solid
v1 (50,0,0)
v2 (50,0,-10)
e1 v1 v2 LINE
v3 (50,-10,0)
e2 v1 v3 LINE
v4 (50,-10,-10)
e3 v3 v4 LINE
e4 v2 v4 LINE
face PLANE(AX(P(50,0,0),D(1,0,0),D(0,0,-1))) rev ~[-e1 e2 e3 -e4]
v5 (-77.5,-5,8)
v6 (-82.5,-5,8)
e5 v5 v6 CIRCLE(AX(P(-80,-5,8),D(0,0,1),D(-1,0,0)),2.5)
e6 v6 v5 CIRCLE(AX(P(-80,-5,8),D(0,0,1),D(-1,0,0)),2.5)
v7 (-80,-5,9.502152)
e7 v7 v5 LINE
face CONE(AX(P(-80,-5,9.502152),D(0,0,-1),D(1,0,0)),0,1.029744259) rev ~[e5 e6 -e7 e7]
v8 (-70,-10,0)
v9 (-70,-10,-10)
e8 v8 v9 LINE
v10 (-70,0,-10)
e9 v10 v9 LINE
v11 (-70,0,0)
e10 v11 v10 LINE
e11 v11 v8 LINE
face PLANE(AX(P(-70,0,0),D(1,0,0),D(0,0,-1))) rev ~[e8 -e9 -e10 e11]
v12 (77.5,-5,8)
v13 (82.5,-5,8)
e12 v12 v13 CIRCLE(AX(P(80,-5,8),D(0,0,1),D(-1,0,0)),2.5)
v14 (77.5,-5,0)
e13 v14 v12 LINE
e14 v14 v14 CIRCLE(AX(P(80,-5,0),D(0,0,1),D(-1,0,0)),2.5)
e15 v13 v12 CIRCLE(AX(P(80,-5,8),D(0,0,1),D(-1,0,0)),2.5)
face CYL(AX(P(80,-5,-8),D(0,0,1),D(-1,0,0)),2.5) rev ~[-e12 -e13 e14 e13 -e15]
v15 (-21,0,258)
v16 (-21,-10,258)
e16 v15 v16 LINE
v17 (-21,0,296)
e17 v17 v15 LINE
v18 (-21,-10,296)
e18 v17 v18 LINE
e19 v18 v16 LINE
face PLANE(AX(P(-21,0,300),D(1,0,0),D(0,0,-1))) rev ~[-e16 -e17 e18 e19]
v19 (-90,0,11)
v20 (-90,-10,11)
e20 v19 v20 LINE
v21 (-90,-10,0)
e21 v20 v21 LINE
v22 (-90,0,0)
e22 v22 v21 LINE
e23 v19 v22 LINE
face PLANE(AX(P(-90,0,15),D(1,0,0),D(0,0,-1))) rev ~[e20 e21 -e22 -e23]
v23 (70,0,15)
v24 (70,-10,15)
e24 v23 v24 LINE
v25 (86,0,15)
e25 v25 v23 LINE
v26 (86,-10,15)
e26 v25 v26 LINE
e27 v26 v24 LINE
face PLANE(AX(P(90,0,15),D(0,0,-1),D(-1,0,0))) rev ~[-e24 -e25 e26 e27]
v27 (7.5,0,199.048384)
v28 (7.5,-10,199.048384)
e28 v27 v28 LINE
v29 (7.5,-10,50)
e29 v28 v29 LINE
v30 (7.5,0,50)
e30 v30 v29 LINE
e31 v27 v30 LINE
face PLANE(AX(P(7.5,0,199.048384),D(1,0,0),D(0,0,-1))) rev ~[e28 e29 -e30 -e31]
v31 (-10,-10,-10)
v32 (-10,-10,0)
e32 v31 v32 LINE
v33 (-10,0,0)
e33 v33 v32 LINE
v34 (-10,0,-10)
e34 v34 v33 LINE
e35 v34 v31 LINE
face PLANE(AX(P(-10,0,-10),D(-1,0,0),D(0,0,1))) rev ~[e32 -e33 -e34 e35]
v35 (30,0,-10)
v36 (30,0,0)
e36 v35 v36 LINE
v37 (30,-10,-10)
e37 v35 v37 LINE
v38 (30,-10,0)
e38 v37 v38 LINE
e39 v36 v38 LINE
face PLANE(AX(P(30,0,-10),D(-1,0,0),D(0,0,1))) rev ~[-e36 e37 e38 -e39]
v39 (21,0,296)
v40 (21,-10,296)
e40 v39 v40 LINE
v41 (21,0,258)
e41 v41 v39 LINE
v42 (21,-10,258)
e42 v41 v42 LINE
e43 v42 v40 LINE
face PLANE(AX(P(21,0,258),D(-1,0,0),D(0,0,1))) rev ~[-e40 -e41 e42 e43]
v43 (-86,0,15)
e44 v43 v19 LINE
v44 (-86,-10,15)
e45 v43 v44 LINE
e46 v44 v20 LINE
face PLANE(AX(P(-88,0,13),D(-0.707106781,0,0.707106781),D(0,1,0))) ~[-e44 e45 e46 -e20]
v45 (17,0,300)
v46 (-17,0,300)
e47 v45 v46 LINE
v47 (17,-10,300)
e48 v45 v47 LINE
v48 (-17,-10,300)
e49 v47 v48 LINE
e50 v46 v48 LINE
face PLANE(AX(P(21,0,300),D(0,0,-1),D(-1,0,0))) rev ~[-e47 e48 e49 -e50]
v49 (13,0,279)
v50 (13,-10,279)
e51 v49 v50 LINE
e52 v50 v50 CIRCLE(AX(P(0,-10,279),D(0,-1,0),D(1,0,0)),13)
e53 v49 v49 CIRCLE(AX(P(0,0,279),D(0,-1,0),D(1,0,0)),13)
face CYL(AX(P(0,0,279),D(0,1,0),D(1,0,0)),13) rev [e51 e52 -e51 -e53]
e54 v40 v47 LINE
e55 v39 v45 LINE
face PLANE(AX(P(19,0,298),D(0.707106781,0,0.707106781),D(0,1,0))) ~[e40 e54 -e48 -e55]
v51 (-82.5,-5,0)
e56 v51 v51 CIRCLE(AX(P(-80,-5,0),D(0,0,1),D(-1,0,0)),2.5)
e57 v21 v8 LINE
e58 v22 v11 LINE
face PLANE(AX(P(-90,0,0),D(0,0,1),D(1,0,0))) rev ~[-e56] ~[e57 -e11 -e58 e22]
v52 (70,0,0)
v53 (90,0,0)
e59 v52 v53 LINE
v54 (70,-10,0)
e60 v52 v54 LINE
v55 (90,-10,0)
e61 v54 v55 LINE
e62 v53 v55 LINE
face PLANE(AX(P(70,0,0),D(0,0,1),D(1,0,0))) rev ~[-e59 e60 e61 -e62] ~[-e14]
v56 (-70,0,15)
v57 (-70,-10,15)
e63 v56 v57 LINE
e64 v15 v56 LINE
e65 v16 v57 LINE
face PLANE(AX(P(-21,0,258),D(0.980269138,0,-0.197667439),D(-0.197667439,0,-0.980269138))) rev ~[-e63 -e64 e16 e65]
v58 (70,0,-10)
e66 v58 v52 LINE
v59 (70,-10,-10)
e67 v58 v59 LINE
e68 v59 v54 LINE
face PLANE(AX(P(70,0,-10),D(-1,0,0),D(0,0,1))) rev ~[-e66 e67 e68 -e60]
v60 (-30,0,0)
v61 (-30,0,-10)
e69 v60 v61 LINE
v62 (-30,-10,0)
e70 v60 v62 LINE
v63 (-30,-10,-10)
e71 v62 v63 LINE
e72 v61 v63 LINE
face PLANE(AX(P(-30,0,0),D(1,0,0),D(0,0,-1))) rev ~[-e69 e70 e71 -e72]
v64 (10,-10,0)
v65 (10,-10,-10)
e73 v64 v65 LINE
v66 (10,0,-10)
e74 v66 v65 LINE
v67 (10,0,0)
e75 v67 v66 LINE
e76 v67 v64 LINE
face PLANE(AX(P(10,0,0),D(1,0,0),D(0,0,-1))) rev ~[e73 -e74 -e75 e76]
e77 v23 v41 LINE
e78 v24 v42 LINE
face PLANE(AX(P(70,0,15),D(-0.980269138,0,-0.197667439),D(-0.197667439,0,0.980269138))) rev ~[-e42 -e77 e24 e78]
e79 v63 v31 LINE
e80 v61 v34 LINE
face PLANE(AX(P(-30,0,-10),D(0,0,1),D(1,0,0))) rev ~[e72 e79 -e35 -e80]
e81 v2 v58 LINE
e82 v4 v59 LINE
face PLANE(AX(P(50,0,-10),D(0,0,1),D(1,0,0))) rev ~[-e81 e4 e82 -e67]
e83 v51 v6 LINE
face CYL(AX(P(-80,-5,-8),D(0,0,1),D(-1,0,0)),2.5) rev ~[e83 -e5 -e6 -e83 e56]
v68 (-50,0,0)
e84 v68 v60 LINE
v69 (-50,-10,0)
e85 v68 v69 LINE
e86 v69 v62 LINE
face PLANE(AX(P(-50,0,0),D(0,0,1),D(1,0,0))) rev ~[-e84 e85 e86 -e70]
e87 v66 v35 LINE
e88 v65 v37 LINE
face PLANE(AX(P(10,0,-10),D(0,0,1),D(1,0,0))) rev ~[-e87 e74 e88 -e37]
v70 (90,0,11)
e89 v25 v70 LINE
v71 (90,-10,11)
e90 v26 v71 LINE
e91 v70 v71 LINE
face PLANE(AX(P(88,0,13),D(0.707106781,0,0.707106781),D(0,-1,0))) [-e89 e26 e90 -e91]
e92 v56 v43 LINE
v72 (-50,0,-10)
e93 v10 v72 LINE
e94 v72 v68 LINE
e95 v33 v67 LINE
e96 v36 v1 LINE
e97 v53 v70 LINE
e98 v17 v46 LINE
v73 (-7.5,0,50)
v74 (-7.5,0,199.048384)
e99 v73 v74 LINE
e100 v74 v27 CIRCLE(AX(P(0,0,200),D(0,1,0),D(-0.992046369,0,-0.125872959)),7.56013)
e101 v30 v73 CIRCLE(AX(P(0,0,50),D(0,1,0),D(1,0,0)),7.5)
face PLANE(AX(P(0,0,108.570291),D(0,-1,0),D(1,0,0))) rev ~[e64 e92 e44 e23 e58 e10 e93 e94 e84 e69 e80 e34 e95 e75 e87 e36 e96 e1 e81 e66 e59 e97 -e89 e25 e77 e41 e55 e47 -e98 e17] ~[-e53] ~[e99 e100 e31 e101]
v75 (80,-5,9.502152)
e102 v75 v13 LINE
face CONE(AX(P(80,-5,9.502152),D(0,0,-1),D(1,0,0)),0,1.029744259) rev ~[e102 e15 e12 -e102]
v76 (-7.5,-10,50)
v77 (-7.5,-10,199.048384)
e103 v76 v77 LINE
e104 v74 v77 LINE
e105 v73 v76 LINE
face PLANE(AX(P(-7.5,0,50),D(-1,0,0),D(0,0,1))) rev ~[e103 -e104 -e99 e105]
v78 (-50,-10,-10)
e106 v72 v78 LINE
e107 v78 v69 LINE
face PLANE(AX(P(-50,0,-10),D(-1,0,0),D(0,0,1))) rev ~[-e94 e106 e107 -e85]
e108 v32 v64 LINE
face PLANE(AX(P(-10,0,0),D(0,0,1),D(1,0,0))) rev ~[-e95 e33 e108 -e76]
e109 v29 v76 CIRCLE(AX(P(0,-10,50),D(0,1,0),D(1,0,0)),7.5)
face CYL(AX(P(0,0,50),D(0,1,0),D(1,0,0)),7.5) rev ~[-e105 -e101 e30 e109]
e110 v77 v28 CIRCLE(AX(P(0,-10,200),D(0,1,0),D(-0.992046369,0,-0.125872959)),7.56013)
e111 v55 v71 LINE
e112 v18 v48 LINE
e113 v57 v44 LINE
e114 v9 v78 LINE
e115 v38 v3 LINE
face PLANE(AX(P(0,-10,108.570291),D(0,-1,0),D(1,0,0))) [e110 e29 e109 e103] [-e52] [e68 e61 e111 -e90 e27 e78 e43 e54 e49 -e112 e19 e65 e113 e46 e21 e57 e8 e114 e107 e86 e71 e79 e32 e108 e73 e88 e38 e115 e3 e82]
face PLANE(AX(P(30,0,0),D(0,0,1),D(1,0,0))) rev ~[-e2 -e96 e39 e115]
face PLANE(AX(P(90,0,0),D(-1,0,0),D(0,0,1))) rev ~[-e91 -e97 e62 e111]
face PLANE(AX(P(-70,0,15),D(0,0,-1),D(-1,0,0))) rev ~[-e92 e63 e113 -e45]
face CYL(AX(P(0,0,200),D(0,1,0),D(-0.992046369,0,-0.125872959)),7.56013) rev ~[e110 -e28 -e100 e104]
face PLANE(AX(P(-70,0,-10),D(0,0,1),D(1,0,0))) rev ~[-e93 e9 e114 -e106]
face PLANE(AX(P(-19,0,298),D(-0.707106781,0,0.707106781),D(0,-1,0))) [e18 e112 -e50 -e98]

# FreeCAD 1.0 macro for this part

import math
import FreeCAD as App
import Part
import Sketcher

V = App.Vector
Q = App.Units.Quantity


def edges_at(feature, points):
    """Names of the edges that pass closest to the given points."""
    edges = feature.Shape.Edges
    near = lambda p: min(range(len(edges)), key=lambda i: edges[i].distToShape(Part.Vertex(*p))[0])
    return sorted({f"Edge{near(p) + 1}" for p in points})

doc = App.newDocument("Part")
body = doc.addObject("PartDesign::Body", "Body")

# Sketch on XZ plane
sketch1 = body.newObject("Sketcher::SketchObject", "Sketch")
sketch1.AttachmentSupport = (doc.getObject("XZ_Plane"), [""])
sketch1.MapMode = "FlatFace"
sketch1.addGeometry([
    Part.LineSegment(V(-10, 0, 0), V(10, 0, 0)),  # 0
    Part.LineSegment(V(10, 0, 0), V(10, -10, 0)),  # 1
    Part.LineSegment(V(10, -10, 0), V(30, -10, 0)),  # 2
    Part.LineSegment(V(30, -10, 0), V(30, 0, 0)),  # 3
    Part.LineSegment(V(30, 0, 0), V(50, 0, 0)),  # 4
    Part.LineSegment(V(50, 0, 0), V(50, -10, 0)),  # 5
    Part.LineSegment(V(50, -10, 0), V(70, -10, 0)),  # 6
    Part.LineSegment(V(70, -10, 0), V(70, 0, 0)),  # 7
    Part.LineSegment(V(70, 0, 0), V(90, 0, 0)),  # 8
    Part.LineSegment(V(90, 0, 0), V(90, 15, 0)),  # 9
    Part.LineSegment(V(90, 15, 0), V(70, 15, 0)),  # 10
    Part.LineSegment(V(70, 15, 0), V(21, 258, 0)),  # 11
    Part.LineSegment(V(21, 258, 0), V(21, 300, 0)),  # 12
    Part.LineSegment(V(21, 300, 0), V(-21, 300, 0)),  # 13
    Part.LineSegment(V(-21, 300, 0), V(-21, 258, 0)),  # 14
    Part.LineSegment(V(-21, 258, 0), V(-70, 15, 0)),  # 15
    Part.LineSegment(V(-70, 15, 0), V(-90, 15, 0)),  # 16
    Part.LineSegment(V(-90, 15, 0), V(-90, 0, 0)),  # 17
    Part.LineSegment(V(-90, 0, 0), V(-70, 0, 0)),  # 18
    Part.LineSegment(V(-70, 0, 0), V(-70, -10, 0)),  # 19
    Part.LineSegment(V(-70, -10, 0), V(-50, -10, 0)),  # 20
    Part.LineSegment(V(-50, -10, 0), V(-50, 0, 0)),  # 21
    Part.LineSegment(V(-50, 0, 0), V(-30, 0, 0)),  # 22
    Part.LineSegment(V(-30, 0, 0), V(-30, -10, 0)),  # 23
    Part.LineSegment(V(-30, -10, 0), V(-10, -10, 0)),  # 24
    Part.LineSegment(V(-10, -10, 0), V(-10, 0, 0)),  # 25
    Part.LineSegment(V(8, 199, 0), V(8, 50, 0)),  # 26
    Part.ArcOfCircle(Part.Circle(V(0, 50, 0), V(0, 0, 1), 8), math.radians(180), math.radians(360)),  # 27
    Part.LineSegment(V(-8, 50, 0), V(-8, 199, 0)),  # 28
    Part.ArcOfCircle(Part.Circle(V(0, 200, 0), V(0, 0, 1), 8), math.radians(-7), math.radians(187)),  # 29
    Part.Circle(V(0, 279, 0), V(0, 0, 1), 13),  # 30
], False)
sketch1.addConstraint([
    Sketcher.Constraint("Coincident", 0, 2, 1, 1),
    Sketcher.Constraint("Coincident", 1, 2, 2, 1),
    Sketcher.Constraint("Coincident", 2, 2, 3, 1),
    Sketcher.Constraint("Coincident", 3, 2, 4, 1),
    Sketcher.Constraint("Coincident", 4, 2, 5, 1),
    Sketcher.Constraint("Coincident", 5, 2, 6, 1),
    Sketcher.Constraint("Coincident", 6, 2, 7, 1),
    Sketcher.Constraint("Coincident", 7, 2, 8, 1),
    Sketcher.Constraint("Coincident", 8, 2, 9, 1),
    Sketcher.Constraint("Coincident", 9, 2, 10, 1),
    Sketcher.Constraint("Coincident", 10, 2, 11, 1),
    Sketcher.Constraint("Coincident", 11, 2, 12, 1),
    Sketcher.Constraint("Coincident", 12, 2, 13, 1),
    Sketcher.Constraint("Coincident", 13, 2, 14, 1),
    Sketcher.Constraint("Coincident", 14, 2, 15, 1),
    Sketcher.Constraint("Coincident", 15, 2, 16, 1),
    Sketcher.Constraint("Coincident", 16, 2, 17, 1),
    Sketcher.Constraint("Coincident", 17, 2, 18, 1),
    Sketcher.Constraint("Coincident", 18, 2, 19, 1),
    Sketcher.Constraint("Coincident", 19, 2, 20, 1),
    Sketcher.Constraint("Coincident", 20, 2, 21, 1),
    Sketcher.Constraint("Coincident", 21, 2, 22, 1),
    Sketcher.Constraint("Coincident", 22, 2, 23, 1),
    Sketcher.Constraint("Coincident", 23, 2, 24, 1),
    Sketcher.Constraint("Coincident", 24, 2, 25, 1),
    Sketcher.Constraint("Coincident", 25, 2, 0, 1),
    Sketcher.Constraint("Tangent", 26, 2, 27, 2),
    Sketcher.Constraint("Tangent", 27, 1, 28, 1),
    Sketcher.Constraint("Coincident", 28, 2, 29, 2),
    Sketcher.Constraint("Coincident", 29, 1, 26, 1),
    Sketcher.Constraint("Horizontal", 0),
    Sketcher.Constraint("Vertical", 1),
    Sketcher.Constraint("Horizontal", 2),
    Sketcher.Constraint("Vertical", 3),
    Sketcher.Constraint("Horizontal", 4),
    Sketcher.Constraint("Vertical", 5),
    Sketcher.Constraint("Horizontal", 6),
    Sketcher.Constraint("Vertical", 7),
    Sketcher.Constraint("Horizontal", 8),
    Sketcher.Constraint("Vertical", 9),
    Sketcher.Constraint("Horizontal", 10),
    Sketcher.Constraint("Vertical", 12),
    Sketcher.Constraint("Horizontal", 13),
    Sketcher.Constraint("Vertical", 14),
    Sketcher.Constraint("Horizontal", 16),
    Sketcher.Constraint("Vertical", 17),
    Sketcher.Constraint("Horizontal", 18),
    Sketcher.Constraint("Vertical", 19),
    Sketcher.Constraint("Horizontal", 20),
    Sketcher.Constraint("Vertical", 21),
    Sketcher.Constraint("Horizontal", 22),
    Sketcher.Constraint("Vertical", 23),
    Sketcher.Constraint("Horizontal", 24),
    Sketcher.Constraint("Vertical", 25),
    Sketcher.Constraint("Vertical", 26),
    Sketcher.Constraint("Vertical", 28),
    Sketcher.Constraint("Symmetric", 8, 2, 17, 2, -1, 1),
    Sketcher.Constraint("Symmetric", 4, 2, 21, 2, -1, 1),
    Sketcher.Constraint("Symmetric", 0, 2, 25, 2, -1, 1),
    Sketcher.Constraint("Symmetric", 11, 2, 14, 2, -2),
    Sketcher.Constraint("Symmetric", 10, 2, 15, 2, -2),
    Sketcher.Constraint("Symmetric", 7, 2, 18, 2, -2),
    Sketcher.Constraint("Symmetric", 3, 2, 22, 2, -2),
    Sketcher.Constraint("Symmetric", 28, 2, 29, 1, -2),
    Sketcher.Constraint("PointOnObject", 30, 3, -2),
    Sketcher.Constraint("Horizontal", 2, 2, 5, 2),
    Sketcher.Constraint("Horizontal", 6, 2, 19, 2),
    Sketcher.Constraint("Horizontal", 20, 2, 23, 2),
    Sketcher.Constraint("Vertical", 7, 2, 10, 2),
    Sketcher.Constraint("Equal", 0, 2),
    Sketcher.Constraint("Equal", 2, 4),
    Sketcher.Constraint("Equal", 4, 6),
    Sketcher.Constraint("Equal", 6, 8),
    Sketcher.Constraint("Equal", 13, 12),
    Sketcher.Constraint("Diameter", 30, Q("26 mm")),
    Sketcher.Constraint("Radius", 27, Q("7.5 mm")),
    Sketcher.Constraint("DistanceX", 0, 1, 0, 2, Q("20 mm")),
    Sketcher.Constraint("DistanceX", 13, 2, 13, 1, Q("42 mm")),
    Sketcher.Constraint("DistanceY", 1, 2, 1, 1, Q("10 mm")),
    Sketcher.Constraint("DistanceY", 9, 1, 9, 2, Q("15 mm")),
    Sketcher.Constraint("DistanceY", -1, 1, 27, 3, Q("50 mm")),
    Sketcher.Constraint("DistanceY", -1, 1, 29, 3, Q("200 mm")),
    Sketcher.Constraint("DistanceY", -1, 1, 30, 3, Q("279 mm")),
    Sketcher.Constraint("DistanceY", -1, 1, 11, 2, Q("258 mm")),
    Sketcher.Constraint("Radius", 29, Q("7.56013 mm")),
])
pad1 = body.newObject("PartDesign::Pad", "Pad")
pad1.Profile = sketch1
pad1.Length = 10
doc.recompute()

chamfer = body.newObject("PartDesign::Chamfer", "Chamfer")
chamfer.Base = (pad1, edges_at(pad1, [(21, -5, 300), (-21, -5, 300)]))
chamfer.Size = 4
doc.recompute()

chamfer2 = body.newObject("PartDesign::Chamfer", "Chamfer001")
chamfer2.Base = (chamfer, edges_at(chamfer, [(-90, -5, 15), (90, -5, 15)]))
chamfer2.Size = 4

# Sketch on XY plane
sketch2 = body.newObject("Sketcher::SketchObject", "Sketch001")
sketch2.AttachmentSupport = (doc.getObject("XY_Plane"), [""])
sketch2.MapMode = "FlatFace"
sketch2.addGeometry([
    Part.Circle(V(-80, -5, 0), V(0, 0, 1), 2.5),
    Part.Circle(V(80, -5, 0), V(0, 0, 1), 2.5),
], False)
sketch2.addConstraint([
    Sketcher.Constraint("Equal", 0, 1),
    Sketcher.Constraint("Symmetric", 0, 3, 1, 3, -2),
    Sketcher.Constraint("Diameter", 0, Q("5 mm")),
    Sketcher.Constraint("DistanceX", 0, 3, -1, 1, Q("80 mm")),
    Sketcher.Constraint("DistanceY", 0, 3, -1, 1, Q("5 mm")),
])
doc.recompute()
hole = body.newObject("PartDesign::Hole", "Hole")
hole.Profile = sketch2
hole.ThreadType = "None"
hole.Diameter = 5
hole.DepthType = "Dimension"
hole.Depth = 8
hole.DrillPoint = "Angled"
hole.DrillPointAngle = 118
hole.Reversed = True

doc.recompute()
